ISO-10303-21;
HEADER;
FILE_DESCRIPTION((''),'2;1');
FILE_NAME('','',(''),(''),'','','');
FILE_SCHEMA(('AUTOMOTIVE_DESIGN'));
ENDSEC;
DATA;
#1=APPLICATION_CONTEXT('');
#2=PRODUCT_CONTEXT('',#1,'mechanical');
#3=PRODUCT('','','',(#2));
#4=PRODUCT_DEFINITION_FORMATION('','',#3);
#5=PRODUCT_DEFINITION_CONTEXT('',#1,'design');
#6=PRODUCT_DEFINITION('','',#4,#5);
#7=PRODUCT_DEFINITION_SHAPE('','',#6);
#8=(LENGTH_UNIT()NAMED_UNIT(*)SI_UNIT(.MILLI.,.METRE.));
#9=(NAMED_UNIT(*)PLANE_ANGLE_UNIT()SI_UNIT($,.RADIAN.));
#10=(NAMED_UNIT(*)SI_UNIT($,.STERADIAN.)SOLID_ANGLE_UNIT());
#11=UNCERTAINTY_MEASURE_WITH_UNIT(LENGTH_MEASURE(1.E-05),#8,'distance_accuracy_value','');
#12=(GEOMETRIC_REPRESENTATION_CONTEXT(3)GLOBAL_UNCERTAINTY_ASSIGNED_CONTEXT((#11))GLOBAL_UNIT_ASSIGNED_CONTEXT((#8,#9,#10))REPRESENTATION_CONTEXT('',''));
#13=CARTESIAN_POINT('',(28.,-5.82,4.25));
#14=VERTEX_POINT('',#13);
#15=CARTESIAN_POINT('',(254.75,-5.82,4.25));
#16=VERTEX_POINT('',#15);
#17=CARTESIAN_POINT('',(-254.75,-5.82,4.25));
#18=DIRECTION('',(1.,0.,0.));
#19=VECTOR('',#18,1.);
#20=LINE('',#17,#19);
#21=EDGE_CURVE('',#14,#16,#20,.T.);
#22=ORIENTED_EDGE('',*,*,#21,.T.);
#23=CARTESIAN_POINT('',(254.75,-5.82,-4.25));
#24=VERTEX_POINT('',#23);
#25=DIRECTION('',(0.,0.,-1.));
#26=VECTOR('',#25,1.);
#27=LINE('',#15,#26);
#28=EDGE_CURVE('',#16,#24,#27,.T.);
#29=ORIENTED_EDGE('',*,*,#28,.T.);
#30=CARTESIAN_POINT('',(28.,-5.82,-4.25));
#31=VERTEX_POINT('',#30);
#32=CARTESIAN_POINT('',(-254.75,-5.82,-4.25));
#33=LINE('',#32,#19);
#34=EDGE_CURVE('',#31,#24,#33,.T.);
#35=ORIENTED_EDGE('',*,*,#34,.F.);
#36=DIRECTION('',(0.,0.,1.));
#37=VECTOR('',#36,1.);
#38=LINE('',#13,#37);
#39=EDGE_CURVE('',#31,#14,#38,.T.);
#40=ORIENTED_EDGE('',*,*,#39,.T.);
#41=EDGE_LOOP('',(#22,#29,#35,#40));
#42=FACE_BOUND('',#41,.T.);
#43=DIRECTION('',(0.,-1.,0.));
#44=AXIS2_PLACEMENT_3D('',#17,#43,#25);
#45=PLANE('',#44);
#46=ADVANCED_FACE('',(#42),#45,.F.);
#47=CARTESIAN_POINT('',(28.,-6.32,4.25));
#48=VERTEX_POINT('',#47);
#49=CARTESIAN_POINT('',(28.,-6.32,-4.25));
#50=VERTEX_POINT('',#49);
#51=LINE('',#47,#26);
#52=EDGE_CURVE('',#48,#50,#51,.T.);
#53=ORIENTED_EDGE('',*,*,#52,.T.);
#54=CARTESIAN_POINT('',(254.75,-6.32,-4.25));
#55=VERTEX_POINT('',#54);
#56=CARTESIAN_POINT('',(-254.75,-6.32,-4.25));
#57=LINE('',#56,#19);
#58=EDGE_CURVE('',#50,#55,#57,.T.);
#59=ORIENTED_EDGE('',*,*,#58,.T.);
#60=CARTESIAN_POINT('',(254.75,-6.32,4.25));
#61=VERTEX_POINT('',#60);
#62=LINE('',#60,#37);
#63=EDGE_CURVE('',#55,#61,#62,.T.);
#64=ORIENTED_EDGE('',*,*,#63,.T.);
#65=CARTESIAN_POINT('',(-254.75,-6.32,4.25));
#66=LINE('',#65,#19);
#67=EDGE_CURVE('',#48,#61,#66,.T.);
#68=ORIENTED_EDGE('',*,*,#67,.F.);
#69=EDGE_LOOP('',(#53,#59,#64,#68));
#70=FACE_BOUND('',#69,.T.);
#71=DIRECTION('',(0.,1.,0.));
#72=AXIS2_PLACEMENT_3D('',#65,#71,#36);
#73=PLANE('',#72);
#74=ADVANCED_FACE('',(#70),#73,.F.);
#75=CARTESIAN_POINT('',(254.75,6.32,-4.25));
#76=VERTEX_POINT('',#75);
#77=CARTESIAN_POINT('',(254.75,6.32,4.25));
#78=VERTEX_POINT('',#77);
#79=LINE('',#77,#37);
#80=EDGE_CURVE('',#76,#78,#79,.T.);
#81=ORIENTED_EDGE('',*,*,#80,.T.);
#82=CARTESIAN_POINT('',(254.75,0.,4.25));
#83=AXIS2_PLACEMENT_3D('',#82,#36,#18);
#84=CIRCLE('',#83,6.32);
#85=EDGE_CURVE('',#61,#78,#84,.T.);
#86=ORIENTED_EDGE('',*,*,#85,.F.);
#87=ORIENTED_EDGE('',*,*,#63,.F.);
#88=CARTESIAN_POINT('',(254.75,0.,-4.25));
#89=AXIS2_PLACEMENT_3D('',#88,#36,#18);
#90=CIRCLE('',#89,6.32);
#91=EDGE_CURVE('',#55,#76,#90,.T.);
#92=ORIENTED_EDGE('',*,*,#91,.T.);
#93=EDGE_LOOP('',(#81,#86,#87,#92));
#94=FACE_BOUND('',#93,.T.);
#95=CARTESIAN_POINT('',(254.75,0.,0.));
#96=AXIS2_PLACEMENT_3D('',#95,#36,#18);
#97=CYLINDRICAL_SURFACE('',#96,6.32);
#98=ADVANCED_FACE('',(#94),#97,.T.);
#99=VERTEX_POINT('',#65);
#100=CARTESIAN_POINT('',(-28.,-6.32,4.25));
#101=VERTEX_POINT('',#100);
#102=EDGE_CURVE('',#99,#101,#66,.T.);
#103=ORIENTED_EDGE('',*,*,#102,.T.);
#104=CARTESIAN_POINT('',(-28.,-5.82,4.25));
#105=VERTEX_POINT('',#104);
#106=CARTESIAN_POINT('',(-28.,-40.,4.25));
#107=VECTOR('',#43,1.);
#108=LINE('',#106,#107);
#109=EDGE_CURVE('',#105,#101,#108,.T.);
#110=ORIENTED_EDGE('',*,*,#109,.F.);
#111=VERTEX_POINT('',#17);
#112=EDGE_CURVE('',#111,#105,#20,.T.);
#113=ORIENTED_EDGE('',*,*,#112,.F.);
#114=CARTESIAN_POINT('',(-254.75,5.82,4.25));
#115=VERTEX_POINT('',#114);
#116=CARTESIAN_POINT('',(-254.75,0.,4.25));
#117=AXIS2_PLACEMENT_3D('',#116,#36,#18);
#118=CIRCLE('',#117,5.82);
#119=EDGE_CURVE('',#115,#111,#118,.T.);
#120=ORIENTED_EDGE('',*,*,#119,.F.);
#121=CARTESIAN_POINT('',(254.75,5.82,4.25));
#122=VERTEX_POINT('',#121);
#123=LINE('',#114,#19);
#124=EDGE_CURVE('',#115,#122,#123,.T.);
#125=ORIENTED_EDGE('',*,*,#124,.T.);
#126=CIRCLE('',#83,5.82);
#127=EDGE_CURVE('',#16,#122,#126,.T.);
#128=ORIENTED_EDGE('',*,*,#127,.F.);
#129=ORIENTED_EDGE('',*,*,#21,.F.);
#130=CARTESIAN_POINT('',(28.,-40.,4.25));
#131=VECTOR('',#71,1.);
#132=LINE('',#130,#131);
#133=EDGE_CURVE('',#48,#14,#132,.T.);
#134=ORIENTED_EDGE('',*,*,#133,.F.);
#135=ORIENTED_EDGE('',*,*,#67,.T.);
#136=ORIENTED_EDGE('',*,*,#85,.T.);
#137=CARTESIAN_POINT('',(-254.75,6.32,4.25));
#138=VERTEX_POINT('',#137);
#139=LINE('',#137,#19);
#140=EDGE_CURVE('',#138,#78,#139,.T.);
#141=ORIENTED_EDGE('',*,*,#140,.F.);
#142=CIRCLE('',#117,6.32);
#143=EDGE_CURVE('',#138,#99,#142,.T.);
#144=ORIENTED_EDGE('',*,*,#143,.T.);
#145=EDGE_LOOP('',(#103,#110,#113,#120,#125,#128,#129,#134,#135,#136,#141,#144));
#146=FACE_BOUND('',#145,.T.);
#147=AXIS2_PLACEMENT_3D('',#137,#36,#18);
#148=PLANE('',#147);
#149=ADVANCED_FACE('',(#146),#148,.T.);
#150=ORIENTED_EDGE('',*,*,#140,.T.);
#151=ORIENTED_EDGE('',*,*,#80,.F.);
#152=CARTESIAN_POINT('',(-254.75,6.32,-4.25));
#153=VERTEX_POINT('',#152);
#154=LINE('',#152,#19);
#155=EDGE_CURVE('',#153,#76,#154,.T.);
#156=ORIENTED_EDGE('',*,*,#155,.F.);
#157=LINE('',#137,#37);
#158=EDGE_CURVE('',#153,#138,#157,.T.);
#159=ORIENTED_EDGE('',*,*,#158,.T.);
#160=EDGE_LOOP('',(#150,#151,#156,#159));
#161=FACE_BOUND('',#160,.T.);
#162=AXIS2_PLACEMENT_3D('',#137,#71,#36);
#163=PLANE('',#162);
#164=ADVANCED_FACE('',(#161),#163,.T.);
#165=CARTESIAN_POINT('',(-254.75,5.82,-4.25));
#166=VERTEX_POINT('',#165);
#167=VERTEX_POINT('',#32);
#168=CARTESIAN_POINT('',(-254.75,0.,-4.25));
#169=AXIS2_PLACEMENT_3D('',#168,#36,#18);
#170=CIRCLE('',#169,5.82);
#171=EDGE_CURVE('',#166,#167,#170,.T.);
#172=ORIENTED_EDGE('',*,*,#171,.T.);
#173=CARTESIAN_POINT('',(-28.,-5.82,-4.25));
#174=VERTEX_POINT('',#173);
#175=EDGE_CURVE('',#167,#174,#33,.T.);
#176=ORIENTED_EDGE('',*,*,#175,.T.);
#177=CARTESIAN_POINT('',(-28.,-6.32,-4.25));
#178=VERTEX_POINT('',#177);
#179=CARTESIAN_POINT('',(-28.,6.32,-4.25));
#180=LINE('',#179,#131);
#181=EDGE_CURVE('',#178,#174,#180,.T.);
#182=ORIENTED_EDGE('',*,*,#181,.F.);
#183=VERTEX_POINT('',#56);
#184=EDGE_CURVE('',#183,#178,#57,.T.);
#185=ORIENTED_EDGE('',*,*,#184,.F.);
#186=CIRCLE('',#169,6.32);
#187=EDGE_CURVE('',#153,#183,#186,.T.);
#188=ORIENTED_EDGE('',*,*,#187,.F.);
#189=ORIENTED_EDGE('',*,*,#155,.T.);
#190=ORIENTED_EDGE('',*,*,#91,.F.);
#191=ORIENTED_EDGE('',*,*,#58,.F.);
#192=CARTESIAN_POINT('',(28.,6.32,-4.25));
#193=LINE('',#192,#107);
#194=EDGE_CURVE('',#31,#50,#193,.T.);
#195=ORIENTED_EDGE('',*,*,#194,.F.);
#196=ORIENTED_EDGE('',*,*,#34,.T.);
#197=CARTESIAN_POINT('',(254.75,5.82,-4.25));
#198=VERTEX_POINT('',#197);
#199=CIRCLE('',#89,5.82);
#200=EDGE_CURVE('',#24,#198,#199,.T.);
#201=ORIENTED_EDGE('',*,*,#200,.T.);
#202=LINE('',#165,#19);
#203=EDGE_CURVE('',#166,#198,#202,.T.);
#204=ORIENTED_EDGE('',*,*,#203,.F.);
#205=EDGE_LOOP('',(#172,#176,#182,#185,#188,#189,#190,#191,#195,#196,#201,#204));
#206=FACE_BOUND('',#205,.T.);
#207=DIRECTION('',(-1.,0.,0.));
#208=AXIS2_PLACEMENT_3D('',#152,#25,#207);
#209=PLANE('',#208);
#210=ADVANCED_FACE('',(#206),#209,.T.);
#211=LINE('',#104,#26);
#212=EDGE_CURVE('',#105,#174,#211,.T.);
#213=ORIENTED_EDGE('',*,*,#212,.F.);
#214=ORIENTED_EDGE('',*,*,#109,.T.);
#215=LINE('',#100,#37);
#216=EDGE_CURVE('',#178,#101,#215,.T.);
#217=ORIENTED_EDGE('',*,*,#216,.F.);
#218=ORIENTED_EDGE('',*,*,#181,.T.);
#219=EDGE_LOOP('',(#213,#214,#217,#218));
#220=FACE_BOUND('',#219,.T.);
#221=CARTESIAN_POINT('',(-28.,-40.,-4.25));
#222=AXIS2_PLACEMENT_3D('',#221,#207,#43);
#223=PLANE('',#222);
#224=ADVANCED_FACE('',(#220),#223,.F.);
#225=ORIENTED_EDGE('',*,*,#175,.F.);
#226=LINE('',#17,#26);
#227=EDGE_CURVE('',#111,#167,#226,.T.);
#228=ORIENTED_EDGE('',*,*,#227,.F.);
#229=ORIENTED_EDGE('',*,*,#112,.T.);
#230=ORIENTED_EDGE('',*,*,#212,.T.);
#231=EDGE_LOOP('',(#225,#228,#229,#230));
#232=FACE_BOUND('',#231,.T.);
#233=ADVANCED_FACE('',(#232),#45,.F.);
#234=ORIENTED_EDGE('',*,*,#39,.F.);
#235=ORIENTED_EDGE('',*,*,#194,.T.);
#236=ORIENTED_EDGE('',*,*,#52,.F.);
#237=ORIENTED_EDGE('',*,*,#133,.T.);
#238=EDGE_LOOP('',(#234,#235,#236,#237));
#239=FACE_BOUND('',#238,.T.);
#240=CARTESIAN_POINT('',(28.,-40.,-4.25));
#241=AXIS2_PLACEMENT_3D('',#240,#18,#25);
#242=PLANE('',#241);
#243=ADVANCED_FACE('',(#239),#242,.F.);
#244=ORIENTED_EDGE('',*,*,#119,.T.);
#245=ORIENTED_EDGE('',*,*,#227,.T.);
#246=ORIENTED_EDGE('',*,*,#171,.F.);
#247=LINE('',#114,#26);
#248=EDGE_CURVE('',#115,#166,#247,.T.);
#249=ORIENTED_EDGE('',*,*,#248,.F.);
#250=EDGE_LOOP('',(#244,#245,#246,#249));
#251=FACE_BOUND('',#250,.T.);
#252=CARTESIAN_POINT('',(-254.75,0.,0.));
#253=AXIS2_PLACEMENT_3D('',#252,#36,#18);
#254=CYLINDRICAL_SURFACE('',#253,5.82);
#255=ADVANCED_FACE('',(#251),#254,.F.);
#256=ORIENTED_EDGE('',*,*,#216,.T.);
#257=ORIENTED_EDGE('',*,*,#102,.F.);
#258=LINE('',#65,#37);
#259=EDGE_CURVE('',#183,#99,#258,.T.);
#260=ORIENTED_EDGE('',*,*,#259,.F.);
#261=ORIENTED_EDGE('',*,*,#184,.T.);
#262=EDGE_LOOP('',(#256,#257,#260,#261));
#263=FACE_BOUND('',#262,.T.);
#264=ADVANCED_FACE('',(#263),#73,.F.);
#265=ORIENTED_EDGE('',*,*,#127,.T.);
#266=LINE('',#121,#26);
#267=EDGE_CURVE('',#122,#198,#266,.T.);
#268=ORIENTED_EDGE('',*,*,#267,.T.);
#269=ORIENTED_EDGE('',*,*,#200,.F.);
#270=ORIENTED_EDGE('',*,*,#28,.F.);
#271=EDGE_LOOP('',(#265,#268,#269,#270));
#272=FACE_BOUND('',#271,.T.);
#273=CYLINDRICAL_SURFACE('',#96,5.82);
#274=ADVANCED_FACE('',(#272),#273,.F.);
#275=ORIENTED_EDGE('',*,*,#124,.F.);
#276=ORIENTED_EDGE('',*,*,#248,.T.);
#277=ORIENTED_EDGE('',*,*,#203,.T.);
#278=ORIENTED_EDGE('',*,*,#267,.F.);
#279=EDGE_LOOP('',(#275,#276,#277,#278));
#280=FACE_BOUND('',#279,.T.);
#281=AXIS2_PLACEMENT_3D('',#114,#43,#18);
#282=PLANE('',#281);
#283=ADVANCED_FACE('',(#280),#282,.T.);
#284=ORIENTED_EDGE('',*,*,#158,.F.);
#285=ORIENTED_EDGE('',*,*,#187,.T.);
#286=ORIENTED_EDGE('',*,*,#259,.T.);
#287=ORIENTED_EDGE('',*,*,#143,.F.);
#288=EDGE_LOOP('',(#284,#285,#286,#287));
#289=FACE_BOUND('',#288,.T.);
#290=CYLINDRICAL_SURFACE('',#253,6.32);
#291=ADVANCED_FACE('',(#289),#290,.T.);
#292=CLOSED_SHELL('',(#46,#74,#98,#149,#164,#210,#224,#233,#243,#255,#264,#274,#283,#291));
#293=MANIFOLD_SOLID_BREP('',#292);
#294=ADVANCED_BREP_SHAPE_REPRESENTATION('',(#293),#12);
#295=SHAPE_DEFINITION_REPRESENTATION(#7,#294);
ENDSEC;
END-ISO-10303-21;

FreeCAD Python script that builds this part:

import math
import FreeCAD as App
import Part
import Sketcher

V = App.Vector

doc = App.newDocument("Part")
body = doc.addObject("PartDesign::Body", "Body")

# Sketch on YZ plane
sketch1 = body.newObject("Sketcher::SketchObject", "Sketch")
sketch1.AttachmentSupport = (doc.getObject("YZ_Plane"), [""])
sketch1.MapMode = "FlatFace"
sketch1.addGeometry(Part.LineSegment(V(6.3, 4.2, 0), V(5.8, 4.2, 0)), False)
sketch1.addGeometry(Part.LineSegment(V(5.8, 4.2, 0), V(5.8, -4.2, 0)), False)
sketch1.addGeometry(Part.LineSegment(V(5.8, -4.2, 0), V(6.3, -4.2, 0)), False)
sketch1.addGeometry(Part.LineSegment(V(6.3, -4.2, 0), V(6.3, 4.2, 0)), False)
sketch1.addConstraint(Sketcher.Constraint("Coincident", 0, 2, 1, 1))
sketch1.addConstraint(Sketcher.Constraint("Coincident", 1, 2, 2, 1))
sketch1.addConstraint(Sketcher.Constraint("Coincident", 2, 2, 3, 1))
sketch1.addConstraint(Sketcher.Constraint("Coincident", 3, 2, 0, 1))
sketch1.addConstraint(Sketcher.Constraint("Horizontal", 0))
sketch1.addConstraint(Sketcher.Constraint("Vertical", 1))
sketch1.addConstraint(Sketcher.Constraint("Horizontal", 2))
sketch1.addConstraint(Sketcher.Constraint("Vertical", 3))
sketch1.addConstraint(Sketcher.Constraint("DistanceX", 0, 2, 0, 1, 0.5))
sketch1.addConstraint(Sketcher.Constraint("DistanceY", 1, 2, 1, 1, 8.5))
sketch1.addConstraint(Sketcher.Constraint("DistanceX", -1, 1, 0, 2, 5.82))
sketch1.addConstraint(Sketcher.Constraint("DistanceY", -1, 1, 0, 2, 4.25))

# Sketch on XY plane
sketch2 = body.newObject("Sketcher::SketchObject", "Sketch001")
sketch2.AttachmentSupport = (doc.getObject("XY_Plane"), [""])
sketch2.MapMode = "FlatFace"
sketch2.addGeometry(Part.LineSegment(V(-255, 6, 0), V(255, 6, 0)), False)
sketch2.addGeometry(Part.ArcOfCircle(Part.Circle(V(255, 0, 0), V(0, 0, 1), 6), math.radians(-90), math.radians(90)), False)
sketch2.addGeometry(Part.LineSegment(V(255, -6, 0), V(-255, -6, 0)), False)
sketch2.addGeometry(Part.ArcOfCircle(Part.Circle(V(-255, 0, 0), V(0, 0, 1), 6), math.radians(90), math.radians(270)), False)
sketch2.addConstraint(Sketcher.Constraint("Tangent", 0, 2, 1, 2))
sketch2.addConstraint(Sketcher.Constraint("Tangent", 1, 1, 2, 1))
sketch2.addConstraint(Sketcher.Constraint("Tangent", 2, 2, 3, 2))
sketch2.addConstraint(Sketcher.Constraint("Tangent", 3, 1, 0, 1))
sketch2.addConstraint(Sketcher.Constraint("Horizontal", 0))
sketch2.addConstraint(Sketcher.Constraint("Horizontal", 2))
sketch2.addConstraint(Sketcher.Constraint("Symmetric", 1, 3, 3, 3, -1, 1))
sketch2.addConstraint(Sketcher.Constraint("Radius", 1, 5.82))
sketch2.addConstraint(Sketcher.Constraint("DistanceX", 0, 1, 0, 2, 509.5))
doc.recompute()

additivepipe = body.newObject("PartDesign::AdditivePipe", "AdditivePipe")
additivepipe.Profile = sketch1
additivepipe.Spine = (sketch2, ["Edge1", "Edge2", "Edge3", "Edge4"])

# Sketch on XY plane
sketch3 = body.newObject("Sketcher::SketchObject", "Sketch002")
sketch3.AttachmentSupport = (doc.getObject("XY_Plane"), [""])
sketch3.MapMode = "FlatFace"
sketch3.addGeometry(Part.LineSegment(V(-28, 0, 0), V(-28, -40, 0)), False)
sketch3.addGeometry(Part.LineSegment(V(-28, -40, 0), V(28, -40, 0)), False)
sketch3.addGeometry(Part.LineSegment(V(28, -40, 0), V(28, 0, 0)), False)
sketch3.addGeometry(Part.LineSegment(V(28, 0, 0), V(-28, 0, 0)), False)
sketch3.addConstraint(Sketcher.Constraint("Coincident", 0, 2, 1, 1))
sketch3.addConstraint(Sketcher.Constraint("Coincident", 1, 2, 2, 1))
sketch3.addConstraint(Sketcher.Constraint("Coincident", 2, 2, 3, 1))
sketch3.addConstraint(Sketcher.Constraint("Coincident", 3, 2, 0, 1))
sketch3.addConstraint(Sketcher.Constraint("Vertical", 0))
sketch3.addConstraint(Sketcher.Constraint("Horizontal", 1))
sketch3.addConstraint(Sketcher.Constraint("Vertical", 2))
sketch3.addConstraint(Sketcher.Constraint("Horizontal", 3))
sketch3.addConstraint(Sketcher.Constraint("Symmetric", 2, 2, 3, 2, -1, 1))
sketch3.addConstraint(Sketcher.Constraint("DistanceX", 1, 1, 1, 2, 56.0))
sketch3.addConstraint(Sketcher.Constraint("DistanceY", 0, 2, 0, 1, 40.0))
pocket1 = body.newObject("PartDesign::Pocket", "Pocket")
pocket1.Profile = sketch3
pocket1.Type = "ThroughAll"
pocket1.Midplane = True

doc.recompute()
